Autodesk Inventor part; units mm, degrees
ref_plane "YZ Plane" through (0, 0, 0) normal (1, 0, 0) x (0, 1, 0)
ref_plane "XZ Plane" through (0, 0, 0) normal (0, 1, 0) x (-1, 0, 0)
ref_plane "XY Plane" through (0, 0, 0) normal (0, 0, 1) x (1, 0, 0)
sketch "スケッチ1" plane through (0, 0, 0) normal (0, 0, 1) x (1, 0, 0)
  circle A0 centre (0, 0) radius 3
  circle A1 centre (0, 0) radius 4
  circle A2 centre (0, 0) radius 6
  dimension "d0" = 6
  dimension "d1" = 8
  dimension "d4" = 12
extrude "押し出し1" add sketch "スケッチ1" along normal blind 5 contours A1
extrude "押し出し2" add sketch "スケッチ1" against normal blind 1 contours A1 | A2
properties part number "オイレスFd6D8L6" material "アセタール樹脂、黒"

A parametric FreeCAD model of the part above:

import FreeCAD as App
import Part
import Sketcher
Q = App.Units.Quantity

doc = App.newDocument("Part")
body = doc.addObject("PartDesign::Body", "Body")

sketch1 = body.newObject("Sketcher::SketchObject", "Sketch")
sketch1.AttachmentSupport = (doc.getObject("XY_Plane"), [""])
sketch1.MapMode = "FlatFace"
sketch1.addGeometry([
    Part.Circle(App.Vector(0, 0, 0), App.Vector(0, 0, 1), 4),
    Part.Circle(App.Vector(0, 0, 0), App.Vector(0, 0, 1), 3),
], False)
sketch1.addConstraint([
    Sketcher.Constraint("Coincident", 0, 3, -1, 1),
    Sketcher.Constraint("Coincident", 1, 3, -1, 1),
    Sketcher.Constraint("Diameter", 0, Q("8 mm")),
    Sketcher.Constraint("Diameter", 1, Q("6 mm")),
])
pad1 = body.newObject("PartDesign::Pad", "Pad")
pad1.Profile = sketch1
pad1.Length = 5

sketch2 = body.newObject("Sketcher::SketchObject", "Sketch001")
sketch2.AttachmentSupport = (doc.getObject("XY_Plane"), [""])
sketch2.MapMode = "FlatFace"
sketch2.addGeometry([
    Part.Circle(App.Vector(0, 0, 0), App.Vector(0, 0, 1), 6),
    Part.Circle(App.Vector(0, 0, 0), App.Vector(0, 0, 1), 3),
], False)
sketch2.addConstraint([
    Sketcher.Constraint("Coincident", 0, 3, -1, 1),
    Sketcher.Constraint("Coincident", 1, 3, -1, 1),
    Sketcher.Constraint("Diameter", 0, Q("12 mm")),
    Sketcher.Constraint("Diameter", 1, Q("6 mm")),
])
pad2 = body.newObject("PartDesign::Pad", "Pad001")
pad2.Profile = sketch2
pad2.Length = 1
pad2.Reversed = True

doc.recompute()
